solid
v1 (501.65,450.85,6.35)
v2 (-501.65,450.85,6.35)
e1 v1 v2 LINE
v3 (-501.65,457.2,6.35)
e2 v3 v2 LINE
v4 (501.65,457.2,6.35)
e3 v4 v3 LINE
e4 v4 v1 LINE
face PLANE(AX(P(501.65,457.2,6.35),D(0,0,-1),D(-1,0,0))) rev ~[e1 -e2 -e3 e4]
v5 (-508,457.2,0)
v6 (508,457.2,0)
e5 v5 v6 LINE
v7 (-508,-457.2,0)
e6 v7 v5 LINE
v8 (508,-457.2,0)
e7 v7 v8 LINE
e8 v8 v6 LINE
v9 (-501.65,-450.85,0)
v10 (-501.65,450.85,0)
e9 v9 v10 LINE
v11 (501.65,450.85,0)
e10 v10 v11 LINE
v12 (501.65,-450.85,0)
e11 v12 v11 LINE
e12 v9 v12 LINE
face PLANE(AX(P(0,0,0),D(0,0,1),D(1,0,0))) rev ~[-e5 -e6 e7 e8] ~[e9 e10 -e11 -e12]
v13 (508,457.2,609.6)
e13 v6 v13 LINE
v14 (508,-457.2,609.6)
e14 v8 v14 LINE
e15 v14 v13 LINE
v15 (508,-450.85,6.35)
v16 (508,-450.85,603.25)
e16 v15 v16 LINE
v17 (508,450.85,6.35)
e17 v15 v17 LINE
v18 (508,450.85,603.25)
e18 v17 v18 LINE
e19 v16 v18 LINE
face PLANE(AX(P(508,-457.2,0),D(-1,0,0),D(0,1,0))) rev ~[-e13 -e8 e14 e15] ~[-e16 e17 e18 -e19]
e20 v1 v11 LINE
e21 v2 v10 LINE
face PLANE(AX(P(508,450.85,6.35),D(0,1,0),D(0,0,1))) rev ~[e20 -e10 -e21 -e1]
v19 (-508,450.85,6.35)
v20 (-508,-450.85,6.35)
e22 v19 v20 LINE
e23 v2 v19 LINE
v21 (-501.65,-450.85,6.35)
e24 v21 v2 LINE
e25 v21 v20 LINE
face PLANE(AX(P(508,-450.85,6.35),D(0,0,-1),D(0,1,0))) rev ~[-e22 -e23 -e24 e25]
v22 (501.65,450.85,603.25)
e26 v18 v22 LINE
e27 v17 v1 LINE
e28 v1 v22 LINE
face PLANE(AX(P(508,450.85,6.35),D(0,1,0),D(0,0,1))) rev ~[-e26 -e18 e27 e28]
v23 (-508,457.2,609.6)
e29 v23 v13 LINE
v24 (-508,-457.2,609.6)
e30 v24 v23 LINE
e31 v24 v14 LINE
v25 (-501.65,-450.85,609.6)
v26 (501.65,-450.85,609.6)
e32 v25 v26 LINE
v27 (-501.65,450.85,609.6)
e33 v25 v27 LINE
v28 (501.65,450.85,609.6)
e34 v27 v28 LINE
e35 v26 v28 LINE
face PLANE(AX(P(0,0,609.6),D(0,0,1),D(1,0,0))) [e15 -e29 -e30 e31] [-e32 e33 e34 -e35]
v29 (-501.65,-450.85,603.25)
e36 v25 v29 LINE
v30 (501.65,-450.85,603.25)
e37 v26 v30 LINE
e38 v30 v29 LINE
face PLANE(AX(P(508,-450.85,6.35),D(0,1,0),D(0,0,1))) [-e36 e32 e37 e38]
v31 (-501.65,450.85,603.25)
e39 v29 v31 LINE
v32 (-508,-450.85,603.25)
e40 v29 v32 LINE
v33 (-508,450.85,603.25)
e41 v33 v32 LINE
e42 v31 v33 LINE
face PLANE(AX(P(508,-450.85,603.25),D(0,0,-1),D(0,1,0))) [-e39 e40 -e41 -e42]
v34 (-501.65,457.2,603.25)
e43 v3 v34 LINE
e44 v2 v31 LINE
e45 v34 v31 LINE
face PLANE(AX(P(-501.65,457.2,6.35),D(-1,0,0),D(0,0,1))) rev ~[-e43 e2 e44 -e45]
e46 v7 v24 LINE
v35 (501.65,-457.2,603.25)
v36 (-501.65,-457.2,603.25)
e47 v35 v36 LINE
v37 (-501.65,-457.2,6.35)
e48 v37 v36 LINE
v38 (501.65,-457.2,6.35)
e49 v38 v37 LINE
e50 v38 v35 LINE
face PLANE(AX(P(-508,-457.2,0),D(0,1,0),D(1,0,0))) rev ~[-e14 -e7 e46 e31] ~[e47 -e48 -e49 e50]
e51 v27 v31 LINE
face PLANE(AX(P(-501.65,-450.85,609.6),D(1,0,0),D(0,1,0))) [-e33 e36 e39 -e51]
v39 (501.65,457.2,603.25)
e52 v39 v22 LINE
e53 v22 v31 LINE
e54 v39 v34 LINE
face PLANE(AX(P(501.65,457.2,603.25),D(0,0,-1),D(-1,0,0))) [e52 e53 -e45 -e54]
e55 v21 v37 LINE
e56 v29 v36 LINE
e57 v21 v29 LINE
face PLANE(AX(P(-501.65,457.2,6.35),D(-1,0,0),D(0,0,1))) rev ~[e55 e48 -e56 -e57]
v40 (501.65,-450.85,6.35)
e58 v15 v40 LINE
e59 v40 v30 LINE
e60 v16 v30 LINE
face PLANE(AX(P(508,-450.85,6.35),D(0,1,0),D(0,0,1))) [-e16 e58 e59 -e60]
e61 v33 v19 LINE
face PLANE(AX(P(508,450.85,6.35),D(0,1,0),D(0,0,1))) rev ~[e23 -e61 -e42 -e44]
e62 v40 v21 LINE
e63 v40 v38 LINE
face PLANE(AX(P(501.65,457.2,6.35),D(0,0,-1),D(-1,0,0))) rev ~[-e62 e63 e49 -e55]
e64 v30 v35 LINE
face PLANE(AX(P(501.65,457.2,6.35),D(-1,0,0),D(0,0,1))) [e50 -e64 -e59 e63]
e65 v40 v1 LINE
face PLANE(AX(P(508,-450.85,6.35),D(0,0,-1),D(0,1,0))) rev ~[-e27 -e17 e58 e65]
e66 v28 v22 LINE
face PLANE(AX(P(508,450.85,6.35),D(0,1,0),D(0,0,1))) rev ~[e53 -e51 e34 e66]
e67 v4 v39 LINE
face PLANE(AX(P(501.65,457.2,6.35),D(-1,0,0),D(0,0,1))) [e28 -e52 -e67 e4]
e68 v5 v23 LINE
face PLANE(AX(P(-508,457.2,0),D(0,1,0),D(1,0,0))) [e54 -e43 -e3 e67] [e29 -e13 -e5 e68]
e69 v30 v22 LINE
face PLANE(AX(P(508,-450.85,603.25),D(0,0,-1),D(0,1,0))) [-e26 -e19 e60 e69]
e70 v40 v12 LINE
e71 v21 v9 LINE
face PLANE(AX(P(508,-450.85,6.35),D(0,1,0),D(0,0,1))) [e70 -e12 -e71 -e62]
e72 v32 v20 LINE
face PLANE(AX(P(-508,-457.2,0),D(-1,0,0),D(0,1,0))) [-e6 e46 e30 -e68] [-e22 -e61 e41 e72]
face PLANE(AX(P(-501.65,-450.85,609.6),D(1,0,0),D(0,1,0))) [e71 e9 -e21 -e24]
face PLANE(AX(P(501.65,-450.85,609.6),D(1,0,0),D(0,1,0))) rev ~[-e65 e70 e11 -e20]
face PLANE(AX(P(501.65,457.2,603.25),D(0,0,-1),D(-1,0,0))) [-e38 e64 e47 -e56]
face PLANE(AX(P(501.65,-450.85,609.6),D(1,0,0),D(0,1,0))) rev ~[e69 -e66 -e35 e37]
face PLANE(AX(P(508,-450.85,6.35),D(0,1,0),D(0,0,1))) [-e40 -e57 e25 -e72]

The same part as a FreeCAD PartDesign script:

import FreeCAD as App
import Part
import Sketcher
from FreeCAD import Vector
Q = App.Units.Quantity


def add_polygon(sketch, points):
    """Adds a closed chain of lines whose ends are joined by coincident constraints."""
    first, n = sketch.GeometryCount, len(points)
    for a, b in zip(points, points[1:] + points[:1]):
        sketch.addGeometry(Part.LineSegment(App.Vector(*a, 0), App.Vector(*b, 0)), False)
    for i in range(n):
        sketch.addConstraint(Sketcher.Constraint("Coincident", first + i, 2, first + (i + 1) % n, 1))

doc = App.newDocument("Part")
params = doc.addObject("Spreadsheet::Sheet", "Params")
for row, (alias, value) in enumerate([
    ("sketch1_width", "40 in"),
    ("sketch1_height", "36 in"),
    ("pad1_length", "24 in"),
    ("sketch2_width", "39.5 in"),
    ("sketch2_height", "35.5 in"),
    ("sketch3_width", "35.5 in"),
    ("sketch3_height", "23.5 in"),
    ("sketch4_width", "39.5 in"),
    ("sketch4_height", "23.5 in"),
], start=1):
    params.set(f"A{row}", alias)
    params.set(f"B{row}", "=" + value)
    params.setAlias(f"B{row}", alias)

body = doc.addObject("PartDesign::Body", "Body")

sketch1 = body.newObject("Sketcher::SketchObject", "Sketch")
sketch1.AttachmentSupport = (doc.getObject("XY_Plane"), [""])
sketch1.MapMode = "FlatFace"
add_polygon(sketch1, [(-508, 457.2), (-508, -457.2), (508, -457.2), (508, 457.2)])
sketch1.addConstraint([
    Sketcher.Constraint("Vertical", 0),
    Sketcher.Constraint("Horizontal", 1),
    Sketcher.Constraint("Vertical", 2),
    Sketcher.Constraint("Horizontal", 3),
    Sketcher.Constraint("Symmetric", 0, 2, 2, 2, -1, 1),
    Sketcher.Constraint("DistanceX", 1, 1, 1, 2, Q("40 in")),
    Sketcher.Constraint("DistanceY", 0, 2, 0, 1, Q("36 in")),
])
sketch1.setExpression("Constraints[9]", "Params.sketch1_width")
sketch1.setExpression("Constraints[10]", "Params.sketch1_height")
pad1 = body.newObject("PartDesign::Pad", "Pad")
pad1.Profile = sketch1
pad1.setExpression("Length", "Params.pad1_length")

sketch2 = body.newObject("Sketcher::SketchObject", "Sketch001")
sketch2.AttachmentSupport = (doc.getObject("XY_Plane"), [""])
sketch2.MapMode = "FlatFace"
sketch2.AttachmentOffset = App.Placement(Vector(0, 0, 24 * 25.4), App.Rotation())
add_polygon(sketch2, [(-501.65, 450.85), (-501.65, -450.85), (501.65, -450.85), (501.65, 450.85)])
sketch2.addConstraint([
    Sketcher.Constraint("Vertical", 0),
    Sketcher.Constraint("Horizontal", 1),
    Sketcher.Constraint("Vertical", 2),
    Sketcher.Constraint("Horizontal", 3),
    Sketcher.Constraint("Symmetric", 0, 2, 2, 2, -1, 1),
    Sketcher.Constraint("DistanceX", 1, 1, 1, 2, Q("39.5 in")),
    Sketcher.Constraint("DistanceY", 0, 2, 0, 1, Q("35.5 in")),
])
sketch2.setExpression("Constraints[9]", "Params.sketch2_width")
sketch2.setExpression("Constraints[10]", "Params.sketch2_height")
pocket1 = body.newObject("PartDesign::Pocket", "Pocket")
pocket1.Profile = sketch2
pocket1.Type = "ThroughAll"

sketch3 = body.newObject("Sketcher::SketchObject", "Sketch002")
sketch3.AttachmentSupport = (doc.getObject("YZ_Plane"), [""])
sketch3.MapMode = "FlatFace"
sketch3.AttachmentOffset = App.Placement(Vector(0, 0, 20 * 25.4), App.Rotation())
add_polygon(sketch3, [(-450.85, 603.25), (-450.85, 6.35), (450.85, 6.35), (450.85, 603.25)])
sketch3.addConstraint([
    Sketcher.Constraint("Vertical", 0),
    Sketcher.Constraint("Horizontal", 1),
    Sketcher.Constraint("Vertical", 2),
    Sketcher.Constraint("Horizontal", 3),
    Sketcher.Constraint("DistanceX", 1, 1, 1, 2, Q("35.5 in")),
    Sketcher.Constraint("DistanceY", 0, 2, 0, 1, Q("23.5 in")),
    Sketcher.Constraint("DistanceX", 0, 2, -1, 1, Q("17.75 in")),
    Sketcher.Constraint("DistanceY", -1, 1, 0, 2, Q("0.25 in")),
])
sketch3.setExpression("Constraints[8]", "Params.sketch3_width")
sketch3.setExpression("Constraints[9]", "Params.sketch3_height")
pocket2 = body.newObject("PartDesign::Pocket", "Pocket001")
pocket2.Profile = sketch3
pocket2.Type = "ThroughAll"

sketch4 = body.newObject("Sketcher::SketchObject", "Sketch003")
sketch4.AttachmentSupport = (doc.getObject("XZ_Plane"), [""])
sketch4.MapMode = "FlatFace"
sketch4.AttachmentOffset = App.Placement(Vector(0, 0, -18 * 25.4), App.Rotation())
add_polygon(sketch4, [(501.65, 603.25), (501.65, 6.35), (-501.65, 6.35), (-501.65, 603.25)])
sketch4.addConstraint([
    Sketcher.Constraint("Vertical", 0),
    Sketcher.Constraint("Horizontal", 1),
    Sketcher.Constraint("Vertical", 2),
    Sketcher.Constraint("Horizontal", 3),
    Sketcher.Constraint("DistanceX", 1, 2, 1, 1, Q("39.5 in")),
    Sketcher.Constraint("DistanceY", 0, 2, 0, 1, Q("23.5 in")),
    Sketcher.Constraint("DistanceX", -1, 1, 0, 2, Q("19.75 in")),
    Sketcher.Constraint("DistanceY", -1, 1, 0, 2, Q("0.25 in")),
])
sketch4.setExpression("Constraints[8]", "Params.sketch4_width")
sketch4.setExpression("Constraints[9]", "Params.sketch4_height")
pocket3 = body.newObject("PartDesign::Pocket", "Pocket002")
pocket3.Profile = sketch4
pocket3.Type = "ThroughAll"
pocket3.Reversed = True

doc.recompute()
